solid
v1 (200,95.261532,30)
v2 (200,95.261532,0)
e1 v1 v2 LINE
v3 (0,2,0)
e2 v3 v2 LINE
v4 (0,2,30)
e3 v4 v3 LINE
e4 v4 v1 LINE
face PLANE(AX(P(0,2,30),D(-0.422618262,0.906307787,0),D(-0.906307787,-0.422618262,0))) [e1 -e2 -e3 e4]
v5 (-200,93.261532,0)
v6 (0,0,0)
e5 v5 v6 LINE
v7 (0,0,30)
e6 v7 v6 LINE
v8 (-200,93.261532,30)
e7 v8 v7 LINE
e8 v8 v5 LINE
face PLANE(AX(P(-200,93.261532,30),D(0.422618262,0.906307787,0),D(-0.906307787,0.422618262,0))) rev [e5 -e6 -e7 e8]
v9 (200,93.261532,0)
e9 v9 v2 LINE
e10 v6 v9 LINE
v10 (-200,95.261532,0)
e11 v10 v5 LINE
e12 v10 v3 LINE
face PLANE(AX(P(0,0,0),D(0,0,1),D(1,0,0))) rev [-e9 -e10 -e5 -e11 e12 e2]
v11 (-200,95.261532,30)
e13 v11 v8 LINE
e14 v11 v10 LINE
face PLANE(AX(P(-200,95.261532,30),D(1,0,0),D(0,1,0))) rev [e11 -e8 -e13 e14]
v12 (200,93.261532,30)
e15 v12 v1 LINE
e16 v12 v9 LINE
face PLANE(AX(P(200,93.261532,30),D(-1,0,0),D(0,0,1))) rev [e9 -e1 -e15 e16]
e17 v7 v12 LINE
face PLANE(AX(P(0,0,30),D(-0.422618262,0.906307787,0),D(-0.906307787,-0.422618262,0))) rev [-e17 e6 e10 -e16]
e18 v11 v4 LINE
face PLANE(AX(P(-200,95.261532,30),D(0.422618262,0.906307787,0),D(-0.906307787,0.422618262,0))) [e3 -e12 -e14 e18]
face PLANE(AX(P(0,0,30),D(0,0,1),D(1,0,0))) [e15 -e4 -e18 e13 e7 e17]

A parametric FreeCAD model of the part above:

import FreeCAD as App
import Part
import Sketcher
Q = App.Units.Quantity


def add_polygon(sketch, points):
    """Adds a closed chain of lines whose ends are joined by coincident constraints."""
    first, n = sketch.GeometryCount, len(points)
    for a, b in zip(points, points[1:] + points[:1]):
        sketch.addGeometry(Part.LineSegment(App.Vector(*a, 0), App.Vector(*b, 0)), False)
    for i in range(n):
        sketch.addConstraint(Sketcher.Constraint("Coincident", first + i, 2, first + (i + 1) % n, 1))

doc = App.newDocument("Part")
params = doc.addObject("Spreadsheet::Sheet", "Params")
for row, (alias, value) in enumerate([
    ("sketch1_height", "2 mm"),
    ("pad1_length", "30 mm"),
], start=1):
    params.set(f"A{row}", alias)
    params.set(f"B{row}", "=" + value)
    params.setAlias(f"B{row}", alias)

body = doc.addObject("PartDesign::Body", "Body")

sketch1 = body.newObject("Sketcher::SketchObject", "Sketch")
sketch1.AttachmentSupport = (doc.getObject("XY_Plane"), [""])
sketch1.MapMode = "FlatFace"
add_polygon(sketch1, [(0, 2), (-200, 95.3), (-200, 93.3), (0, 0), (200, 93.3), (200, 95.3)])
sketch1.addConstraint([
    Sketcher.Constraint("Vertical", 1),
    Sketcher.Constraint("Vertical", 4),
    Sketcher.Constraint("Coincident", 2, 2, -1, 1),
    Sketcher.Constraint("Symmetric", 1, 2, 3, 2, -2),
    Sketcher.Constraint("PointOnObject", 5, 2, -2),
    Sketcher.Constraint("Parallel", 0, 2),
    Sketcher.Constraint("Parallel", 3, 5),
    Sketcher.Constraint("DistanceY", 1, 2, 1, 1, 2.0),
    Sketcher.Constraint("Angle", 0, Q("155 deg")),
    Sketcher.Constraint("DistanceX", 0, 2, -1, 1, 200.0),
])
sketch1.setExpression("Constraints[13]", "Params.sketch1_height")
pad1 = body.newObject("PartDesign::Pad", "Pad")
pad1.Profile = sketch1
pad1.setExpression("Length", "Params.pad1_length")

doc.recompute()
